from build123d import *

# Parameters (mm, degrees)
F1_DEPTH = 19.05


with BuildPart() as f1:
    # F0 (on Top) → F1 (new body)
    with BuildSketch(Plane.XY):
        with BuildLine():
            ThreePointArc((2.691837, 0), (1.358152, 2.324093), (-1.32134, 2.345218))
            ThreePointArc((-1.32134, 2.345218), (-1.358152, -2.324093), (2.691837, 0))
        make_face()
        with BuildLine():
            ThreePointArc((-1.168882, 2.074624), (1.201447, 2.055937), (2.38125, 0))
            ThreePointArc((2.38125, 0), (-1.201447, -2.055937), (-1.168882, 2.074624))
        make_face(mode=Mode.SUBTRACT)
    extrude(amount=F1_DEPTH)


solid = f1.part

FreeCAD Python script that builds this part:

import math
import FreeCAD as App
import Part
import Sketcher

V = App.Vector
Q = App.Units.Quantity

doc = App.newDocument("Part")
body = doc.addObject("PartDesign::Body", "Body")

# Sketch on XY plane
sketch1 = body.newObject("Sketcher::SketchObject", "Sketch")
sketch1.AttachmentSupport = (doc.getObject("XY_Plane"), [""])
sketch1.MapMode = "FlatFace"
sketch1.addGeometry(Part.ArcOfCircle(Part.Circle(V(0, 0, 0), V(0, 0, 1), 2.691837), math.radians(0.00001), math.radians(119.397719)), False)
sketch1.addGeometry(Part.ArcOfCircle(Part.Circle(V(0, 0, 0), V(0, 0, 1), 2.691837), math.radians(119.397733), math.radians(359.999996)), False)
sketch1.addGeometry(Part.ArcOfCircle(Part.Circle(V(0, 0, 0), V(0, 0, 1), 2.38125), math.radians(119.397724), math.radians(360.000006)), False)
sketch1.addGeometry(Part.ArcOfCircle(Part.Circle(V(0, 0, 0), V(0, 0, 1), 2.38125), math.radians(-0.000007), math.radians(119.397737)), False)
sketch1.addConstraint(Sketcher.Constraint("Tangent", 0, 1, 1, 2))
sketch1.addConstraint(Sketcher.Constraint("Coincident", 1, 1, 0, 2))
sketch1.addConstraint(Sketcher.Constraint("Tangent", 2, 1, 3, 2))
sketch1.addConstraint(Sketcher.Constraint("Coincident", 3, 1, 2, 2))
sketch1.addConstraint(Sketcher.Constraint("Coincident", 0, 3, -1, 1))
sketch1.addConstraint(Sketcher.Constraint("Coincident", 2, 3, -1, 1))
sketch1.addConstraint(Sketcher.Constraint("PointOnObject", 0, 1, -1))
sketch1.addConstraint(Sketcher.Constraint("PointOnObject", 3, 1, -1))
sketch1.addConstraint(Sketcher.Constraint("Radius", 2, Q("0.09375 in")))
sketch1.addConstraint(Sketcher.Constraint("Radius", 0, 2.691837))
sketch1.addConstraint(Sketcher.Constraint("DistanceX", 1, 1, -1, 1, 1.32134))
sketch1.addConstraint(Sketcher.Constraint("DistanceX", 2, 1, 0, 3, 1.168882))
pad1 = body.newObject("PartDesign::Pad", "Pad")
pad1.Profile = sketch1
pad1.Length = Q("0.75 in")

doc.recompute()
